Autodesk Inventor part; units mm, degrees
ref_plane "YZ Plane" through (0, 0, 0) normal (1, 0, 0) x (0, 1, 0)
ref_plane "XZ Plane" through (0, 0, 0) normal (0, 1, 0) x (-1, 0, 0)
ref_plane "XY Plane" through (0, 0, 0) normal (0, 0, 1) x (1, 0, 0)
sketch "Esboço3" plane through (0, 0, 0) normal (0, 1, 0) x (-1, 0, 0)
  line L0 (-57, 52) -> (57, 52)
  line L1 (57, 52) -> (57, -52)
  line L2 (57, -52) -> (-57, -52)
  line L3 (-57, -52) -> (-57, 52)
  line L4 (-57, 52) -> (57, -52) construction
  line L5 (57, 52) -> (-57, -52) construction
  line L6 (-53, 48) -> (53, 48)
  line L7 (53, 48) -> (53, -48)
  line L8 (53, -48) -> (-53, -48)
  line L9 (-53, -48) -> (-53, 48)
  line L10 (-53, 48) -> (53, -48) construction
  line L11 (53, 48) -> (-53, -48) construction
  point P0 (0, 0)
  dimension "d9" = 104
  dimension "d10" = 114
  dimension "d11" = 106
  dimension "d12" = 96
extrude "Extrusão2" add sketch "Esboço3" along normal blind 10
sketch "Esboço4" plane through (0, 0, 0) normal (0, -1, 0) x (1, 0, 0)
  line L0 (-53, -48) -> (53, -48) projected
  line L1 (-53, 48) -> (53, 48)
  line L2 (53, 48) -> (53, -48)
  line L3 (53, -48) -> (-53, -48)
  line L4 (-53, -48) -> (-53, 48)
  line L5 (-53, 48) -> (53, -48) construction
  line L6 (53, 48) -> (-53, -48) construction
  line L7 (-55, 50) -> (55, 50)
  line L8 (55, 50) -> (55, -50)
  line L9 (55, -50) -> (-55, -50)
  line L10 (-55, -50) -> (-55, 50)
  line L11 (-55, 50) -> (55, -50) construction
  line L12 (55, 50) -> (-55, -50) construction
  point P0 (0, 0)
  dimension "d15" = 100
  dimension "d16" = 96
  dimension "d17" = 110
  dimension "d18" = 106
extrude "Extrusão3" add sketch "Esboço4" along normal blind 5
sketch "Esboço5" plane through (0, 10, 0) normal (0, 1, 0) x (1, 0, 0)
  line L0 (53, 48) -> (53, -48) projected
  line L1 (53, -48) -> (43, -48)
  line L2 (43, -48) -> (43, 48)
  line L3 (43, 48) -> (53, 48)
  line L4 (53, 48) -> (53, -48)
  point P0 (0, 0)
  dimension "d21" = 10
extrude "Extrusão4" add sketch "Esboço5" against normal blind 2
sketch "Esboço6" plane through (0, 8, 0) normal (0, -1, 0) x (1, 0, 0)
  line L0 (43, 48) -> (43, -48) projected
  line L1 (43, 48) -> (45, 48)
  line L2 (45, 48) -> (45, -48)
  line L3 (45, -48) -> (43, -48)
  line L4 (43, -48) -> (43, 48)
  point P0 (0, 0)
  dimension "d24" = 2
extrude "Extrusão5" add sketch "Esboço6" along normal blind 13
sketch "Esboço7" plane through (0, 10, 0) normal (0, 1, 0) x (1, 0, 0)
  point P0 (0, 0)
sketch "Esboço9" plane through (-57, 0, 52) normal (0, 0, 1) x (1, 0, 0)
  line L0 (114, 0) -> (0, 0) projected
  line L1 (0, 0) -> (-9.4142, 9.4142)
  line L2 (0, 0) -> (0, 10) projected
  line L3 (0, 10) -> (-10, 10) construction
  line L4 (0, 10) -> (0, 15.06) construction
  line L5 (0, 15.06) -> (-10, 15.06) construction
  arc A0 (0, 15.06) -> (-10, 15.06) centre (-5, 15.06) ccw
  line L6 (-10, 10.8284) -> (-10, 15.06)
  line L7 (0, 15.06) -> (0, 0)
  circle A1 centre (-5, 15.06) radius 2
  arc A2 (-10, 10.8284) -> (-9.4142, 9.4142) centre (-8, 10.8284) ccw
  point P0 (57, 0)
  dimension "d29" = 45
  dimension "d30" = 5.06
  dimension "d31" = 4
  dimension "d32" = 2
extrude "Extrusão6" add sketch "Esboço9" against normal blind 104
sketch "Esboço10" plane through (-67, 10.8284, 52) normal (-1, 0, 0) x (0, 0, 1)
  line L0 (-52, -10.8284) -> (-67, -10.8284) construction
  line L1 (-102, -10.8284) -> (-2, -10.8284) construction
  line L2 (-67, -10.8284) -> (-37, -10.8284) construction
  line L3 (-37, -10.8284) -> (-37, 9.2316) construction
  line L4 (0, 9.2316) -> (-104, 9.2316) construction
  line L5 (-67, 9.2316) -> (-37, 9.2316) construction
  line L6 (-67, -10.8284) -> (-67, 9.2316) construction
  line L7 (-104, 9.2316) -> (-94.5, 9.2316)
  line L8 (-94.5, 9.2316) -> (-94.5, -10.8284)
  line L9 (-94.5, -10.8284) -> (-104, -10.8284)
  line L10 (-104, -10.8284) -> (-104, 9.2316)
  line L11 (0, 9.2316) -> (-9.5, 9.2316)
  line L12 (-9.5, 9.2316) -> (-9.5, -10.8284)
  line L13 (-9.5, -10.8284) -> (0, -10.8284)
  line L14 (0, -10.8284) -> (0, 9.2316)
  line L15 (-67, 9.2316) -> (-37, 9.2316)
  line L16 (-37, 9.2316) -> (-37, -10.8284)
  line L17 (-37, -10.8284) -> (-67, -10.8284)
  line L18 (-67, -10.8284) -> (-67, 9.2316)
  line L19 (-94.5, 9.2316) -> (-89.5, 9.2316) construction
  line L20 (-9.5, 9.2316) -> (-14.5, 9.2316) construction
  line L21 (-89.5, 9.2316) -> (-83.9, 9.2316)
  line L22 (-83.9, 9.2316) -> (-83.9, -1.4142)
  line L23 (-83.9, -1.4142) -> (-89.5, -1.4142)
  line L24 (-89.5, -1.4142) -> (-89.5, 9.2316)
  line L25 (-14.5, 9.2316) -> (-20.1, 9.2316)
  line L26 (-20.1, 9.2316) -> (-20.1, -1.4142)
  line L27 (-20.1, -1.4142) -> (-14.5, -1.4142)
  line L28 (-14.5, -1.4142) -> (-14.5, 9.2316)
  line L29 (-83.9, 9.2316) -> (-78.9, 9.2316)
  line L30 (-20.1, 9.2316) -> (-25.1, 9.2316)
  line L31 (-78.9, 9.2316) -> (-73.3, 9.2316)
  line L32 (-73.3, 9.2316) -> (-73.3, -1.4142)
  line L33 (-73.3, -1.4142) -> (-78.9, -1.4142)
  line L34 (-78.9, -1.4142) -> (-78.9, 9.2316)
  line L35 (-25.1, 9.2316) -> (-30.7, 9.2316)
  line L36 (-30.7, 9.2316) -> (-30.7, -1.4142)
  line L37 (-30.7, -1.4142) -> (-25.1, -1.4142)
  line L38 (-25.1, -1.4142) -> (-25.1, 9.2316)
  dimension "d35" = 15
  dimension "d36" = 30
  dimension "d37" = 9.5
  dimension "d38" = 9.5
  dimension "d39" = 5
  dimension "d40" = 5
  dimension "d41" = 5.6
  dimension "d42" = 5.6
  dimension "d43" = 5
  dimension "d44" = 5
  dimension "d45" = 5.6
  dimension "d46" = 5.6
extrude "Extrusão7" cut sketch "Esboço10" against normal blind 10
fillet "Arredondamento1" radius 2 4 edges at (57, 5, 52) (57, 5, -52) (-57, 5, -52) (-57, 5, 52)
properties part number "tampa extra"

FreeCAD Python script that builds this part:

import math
import FreeCAD as App
import Part
import Sketcher
Q = App.Units.Quantity


def edges_at(feature, points):
    """Names of the edges that pass closest to the given points."""
    edges = feature.Shape.Edges
    near = lambda p: min(range(len(edges)), key=lambda i: edges[i].distToShape(Part.Vertex(*p))[0])
    return sorted({f"Edge{near(p) + 1}" for p in points})

doc = App.newDocument("Part")
body = doc.addObject("PartDesign::Body", "Body")

sketch1 = body.newObject("Sketcher::SketchObject", "Sketch")
sketch1.AttachmentSupport = (doc.getObject("XZ_Plane"), [""])
sketch1.MapMode = "FlatFace"
sketch1.addGeometry(Part.LineSegment(App.Vector(-57, 52, 0), App.Vector(57, 52, 0)), False)
sketch1.addGeometry(Part.LineSegment(App.Vector(57, 52, 0), App.Vector(57, -52, 0)), False)
sketch1.addGeometry(Part.LineSegment(App.Vector(57, -52, 0), App.Vector(-57, -52, 0)), False)
sketch1.addGeometry(Part.LineSegment(App.Vector(-57, -52, 0), App.Vector(-57, 52, 0)), False)
sketch1.addGeometry(Part.LineSegment(App.Vector(53, -48, 0), App.Vector(53, 48, 0)), False)
sketch1.addGeometry(Part.LineSegment(App.Vector(53, 48, 0), App.Vector(-53, 48, 0)), False)
sketch1.addGeometry(Part.LineSegment(App.Vector(-53, 48, 0), App.Vector(-53, -48, 0)), False)
sketch1.addGeometry(Part.LineSegment(App.Vector(-53, -48, 0), App.Vector(53, -48, 0)), False)
sketch1.addConstraint(Sketcher.Constraint("Coincident", 0, 2, 1, 1))
sketch1.addConstraint(Sketcher.Constraint("Coincident", 1, 2, 2, 1))
sketch1.addConstraint(Sketcher.Constraint("Coincident", 2, 2, 3, 1))
sketch1.addConstraint(Sketcher.Constraint("Coincident", 3, 2, 0, 1))
sketch1.addConstraint(Sketcher.Constraint("Coincident", 4, 2, 5, 1))
sketch1.addConstraint(Sketcher.Constraint("Coincident", 5, 2, 6, 1))
sketch1.addConstraint(Sketcher.Constraint("Coincident", 6, 2, 7, 1))
sketch1.addConstraint(Sketcher.Constraint("Coincident", 7, 2, 4, 1))
sketch1.addConstraint(Sketcher.Constraint("Horizontal", 0))
sketch1.addConstraint(Sketcher.Constraint("Vertical", 1))
sketch1.addConstraint(Sketcher.Constraint("Horizontal", 2))
sketch1.addConstraint(Sketcher.Constraint("Vertical", 3))
sketch1.addConstraint(Sketcher.Constraint("Vertical", 4))
sketch1.addConstraint(Sketcher.Constraint("Horizontal", 5))
sketch1.addConstraint(Sketcher.Constraint("Vertical", 6))
sketch1.addConstraint(Sketcher.Constraint("Horizontal", 7))
sketch1.addConstraint(Sketcher.Constraint("Symmetric", 0, 2, 2, 2, -1, 1))
sketch1.addConstraint(Sketcher.Constraint("Symmetric", 4, 2, 6, 2, -1, 1))
sketch1.addConstraint(Sketcher.Constraint("DistanceX", 0, 1, 0, 2, 114.0))
sketch1.addConstraint(Sketcher.Constraint("DistanceX", 5, 2, 5, 1, 106.0))
sketch1.addConstraint(Sketcher.Constraint("DistanceY", 1, 2, 1, 1, 104.0))
sketch1.addConstraint(Sketcher.Constraint("DistanceY", 4, 1, 4, 2, 96.0))
pad1 = body.newObject("PartDesign::Pad", "Pad")
pad1.Profile = sketch1
pad1.Length = 10
pad1.Reversed = True

sketch2 = body.newObject("Sketcher::SketchObject", "Sketch001")
sketch2.AttachmentSupport = (doc.getObject("XZ_Plane"), [""])
sketch2.MapMode = "FlatFace"
sketch2.addGeometry(Part.LineSegment(App.Vector(55, 50, 0), App.Vector(-55, 50, 0)), False)
sketch2.addGeometry(Part.LineSegment(App.Vector(-55, 50, 0), App.Vector(-55, -50, 0)), False)
sketch2.addGeometry(Part.LineSegment(App.Vector(-55, -50, 0), App.Vector(55, -50, 0)), False)
sketch2.addGeometry(Part.LineSegment(App.Vector(55, -50, 0), App.Vector(55, 50, 0)), False)
sketch2.addGeometry(Part.LineSegment(App.Vector(53, -48, 0), App.Vector(-53, -48, 0)), False)
sketch2.addGeometry(Part.LineSegment(App.Vector(-53, -48, 0), App.Vector(-53, 48, 0)), False)
sketch2.addGeometry(Part.LineSegment(App.Vector(-53, 48, 0), App.Vector(53, 48, 0)), False)
sketch2.addGeometry(Part.LineSegment(App.Vector(53, 48, 0), App.Vector(53, -48, 0)), False)
sketch2.addConstraint(Sketcher.Constraint("Coincident", 0, 2, 1, 1))
sketch2.addConstraint(Sketcher.Constraint("Coincident", 1, 2, 2, 1))
sketch2.addConstraint(Sketcher.Constraint("Coincident", 2, 2, 3, 1))
sketch2.addConstraint(Sketcher.Constraint("Coincident", 3, 2, 0, 1))
sketch2.addConstraint(Sketcher.Constraint("Coincident", 4, 2, 5, 1))
sketch2.addConstraint(Sketcher.Constraint("Coincident", 5, 2, 6, 1))
sketch2.addConstraint(Sketcher.Constraint("Coincident", 6, 2, 7, 1))
sketch2.addConstraint(Sketcher.Constraint("Coincident", 7, 2, 4, 1))
sketch2.addConstraint(Sketcher.Constraint("Horizontal", 0))
sketch2.addConstraint(Sketcher.Constraint("Vertical", 1))
sketch2.addConstraint(Sketcher.Constraint("Horizontal", 2))
sketch2.addConstraint(Sketcher.Constraint("Vertical", 3))
sketch2.addConstraint(Sketcher.Constraint("Horizontal", 4))
sketch2.addConstraint(Sketcher.Constraint("Vertical", 5))
sketch2.addConstraint(Sketcher.Constraint("Horizontal", 6))
sketch2.addConstraint(Sketcher.Constraint("Vertical", 7))
sketch2.addConstraint(Sketcher.Constraint("Symmetric", 0, 2, 2, 2, -1, 1))
sketch2.addConstraint(Sketcher.Constraint("Symmetric", 4, 2, 6, 2, -1, 1))
sketch2.addConstraint(Sketcher.Constraint("DistanceX", 0, 2, 0, 1, 110.0))
sketch2.addConstraint(Sketcher.Constraint("DistanceX", 4, 2, 4, 1, 106.0))
sketch2.addConstraint(Sketcher.Constraint("DistanceY", 1, 2, 1, 1, 100.0))
sketch2.addConstraint(Sketcher.Constraint("DistanceY", 5, 1, 5, 2, 96.0))
pad2 = body.newObject("PartDesign::Pad", "Pad001")
pad2.Profile = sketch2
pad2.Length = 5

sketch3 = body.newObject("Sketcher::SketchObject", "Sketch002")
sketch3.AttachmentSupport = (doc.getObject("XZ_Plane"), [""])
sketch3.MapMode = "FlatFace"
sketch3.AttachmentOffset = App.Placement(App.Vector(0, 0, -10), App.Rotation())
sketch3.addGeometry(Part.LineSegment(App.Vector(53, 48, 0), App.Vector(53, -48, 0)), False)
sketch3.addGeometry(Part.LineSegment(App.Vector(53, -48, 0), App.Vector(43, -48, 0)), False)
sketch3.addGeometry(Part.LineSegment(App.Vector(43, -48, 0), App.Vector(43, 48, 0)), False)
sketch3.addGeometry(Part.LineSegment(App.Vector(43, 48, 0), App.Vector(53, 48, 0)), False)
sketch3.addConstraint(Sketcher.Constraint("Coincident", 0, 2, 1, 1))
sketch3.addConstraint(Sketcher.Constraint("Coincident", 1, 2, 2, 1))
sketch3.addConstraint(Sketcher.Constraint("Coincident", 2, 2, 3, 1))
sketch3.addConstraint(Sketcher.Constraint("Coincident", 3, 2, 0, 1))
sketch3.addConstraint(Sketcher.Constraint("Vertical", 0))
sketch3.addConstraint(Sketcher.Constraint("Horizontal", 1))
sketch3.addConstraint(Sketcher.Constraint("Vertical", 2))
sketch3.addConstraint(Sketcher.Constraint("Horizontal", 3))
sketch3.addConstraint(Sketcher.Constraint("DistanceX", 1, 2, 1, 1, 10.0))
sketch3.addConstraint(Sketcher.Constraint("DistanceY", 0, 2, 0, 1, 96.0))
sketch3.addConstraint(Sketcher.Constraint("DistanceX", -1, 1, 0, 2, 53.0))
sketch3.addConstraint(Sketcher.Constraint("DistanceY", 0, 2, -1, 1, 48.0))
pad3 = body.newObject("PartDesign::Pad", "Pad002")
pad3.Profile = sketch3
pad3.Length = 2

sketch4 = body.newObject("Sketcher::SketchObject", "Sketch003")
sketch4.AttachmentSupport = (doc.getObject("XZ_Plane"), [""])
sketch4.MapMode = "FlatFace"
sketch4.AttachmentOffset = App.Placement(App.Vector(0, 0, -8), App.Rotation())
sketch4.addGeometry(Part.LineSegment(App.Vector(45, 48, 0), App.Vector(43, 48, 0)), False)
sketch4.addGeometry(Part.LineSegment(App.Vector(43, 48, 0), App.Vector(43, -48, 0)), False)
sketch4.addGeometry(Part.LineSegment(App.Vector(43, -48, 0), App.Vector(45, -48, 0)), False)
sketch4.addGeometry(Part.LineSegment(App.Vector(45, -48, 0), App.Vector(45, 48, 0)), False)
sketch4.addConstraint(Sketcher.Constraint("Coincident", 0, 2, 1, 1))
sketch4.addConstraint(Sketcher.Constraint("Coincident", 1, 2, 2, 1))
sketch4.addConstraint(Sketcher.Constraint("Coincident", 2, 2, 3, 1))
sketch4.addConstraint(Sketcher.Constraint("Coincident", 3, 2, 0, 1))
sketch4.addConstraint(Sketcher.Constraint("Horizontal", 0))
sketch4.addConstraint(Sketcher.Constraint("Vertical", 1))
sketch4.addConstraint(Sketcher.Constraint("Horizontal", 2))
sketch4.addConstraint(Sketcher.Constraint("Vertical", 3))
sketch4.addConstraint(Sketcher.Constraint("DistanceX", 0, 2, 0, 1, 2.0))
sketch4.addConstraint(Sketcher.Constraint("DistanceY", 1, 2, 1, 1, 96.0))
sketch4.addConstraint(Sketcher.Constraint("DistanceX", -1, 1, 0, 2, 43.0))
sketch4.addConstraint(Sketcher.Constraint("DistanceY", -1, 1, 0, 2, 48.0))
pad4 = body.newObject("PartDesign::Pad", "Pad003")
pad4.Profile = sketch4
pad4.Length = 13

sketch5 = body.newObject("Sketcher::SketchObject", "Sketch004")
sketch5.AttachmentSupport = (doc.getObject("XY_Plane"), [""])
sketch5.MapMode = "FlatFace"
sketch5.AttachmentOffset = App.Placement(App.Vector(0, 0, 52), App.Rotation())
sketch5.addGeometry(Part.LineSegment(App.Vector(-66.4, 9.4, 0), App.Vector(-57, 0, 0)), False)
sketch5.addGeometry(Part.LineSegment(App.Vector(-57, 0, 0), App.Vector(-57, 15.1, 0)), False)
sketch5.addGeometry(Part.ArcOfCircle(Part.Circle(App.Vector(-62, 15.1, 0), App.Vector(0, 0, 1), 5), math.radians(0), math.radians(180)), False)
sketch5.addGeometry(Part.LineSegment(App.Vector(-67, 15.1, 0), App.Vector(-67, 10.8, 0)), False)
sketch5.addGeometry(Part.ArcOfCircle(Part.Circle(App.Vector(-65, 10.8, 0), App.Vector(0, 0, 1), 2), math.radians(180), math.radians(225)), False)
sketch5.addGeometry(Part.Circle(App.Vector(-62, 15.1, 0), App.Vector(0, 0, 1), 2), False)
sketch5.addConstraint(Sketcher.Constraint("Coincident", 0, 2, 1, 1))
sketch5.addConstraint(Sketcher.Constraint("Tangent", 1, 2, 2, 1))
sketch5.addConstraint(Sketcher.Constraint("Tangent", 2, 2, 3, 1))
sketch5.addConstraint(Sketcher.Constraint("Tangent", 3, 2, 4, 1))
sketch5.addConstraint(Sketcher.Constraint("Tangent", 4, 2, 0, 1))
sketch5.addConstraint(Sketcher.Constraint("Vertical", 1))
sketch5.addConstraint(Sketcher.Constraint("Vertical", 3))
sketch5.addConstraint(Sketcher.Constraint("Coincident", 5, 3, 2, 3))
sketch5.addConstraint(Sketcher.Constraint("Equal", 4, 5))
sketch5.addConstraint(Sketcher.Constraint("PointOnObject", 0, 2, -1))
sketch5.addConstraint(Sketcher.Constraint("Diameter", 5, 4.0))
sketch5.addConstraint(Sketcher.Constraint("Angle", 0, Q("-45 deg")))
sketch5.addConstraint(Sketcher.Constraint("Radius", 2, 5.0))
sketch5.addConstraint(Sketcher.Constraint("DistanceX", 2, 3, -1, 1, 62.0))
sketch5.addConstraint(Sketcher.Constraint("DistanceY", 1, 1, 1, 2, 15.06))
pad5 = body.newObject("PartDesign::Pad", "Pad004")
pad5.Profile = sketch5
pad5.Length = 104
pad5.Reversed = True

sketch6 = body.newObject("Sketcher::SketchObject", "Sketch005")
sketch6.AttachmentSupport = (doc.getObject("YZ_Plane"), [""])
sketch6.MapMode = "FlatFace"
sketch6.AttachmentOffset = App.Placement(App.Vector(0, 0, -67), App.Rotation())
sketch6.addGeometry(Part.LineSegment(App.Vector(20, -42, 0), App.Vector(20, -52, 0)), False)
sketch6.addGeometry(Part.LineSegment(App.Vector(20, -52, 0), App.Vector(0, -52, 0)), False)
sketch6.addGeometry(Part.LineSegment(App.Vector(0, -52, 0), App.Vector(0, -42, 0)), False)
sketch6.addGeometry(Part.LineSegment(App.Vector(0, -42, 0), App.Vector(20, -42, 0)), False)
sketch6.addGeometry(Part.LineSegment(App.Vector(0, 52, 0), App.Vector(20, 52, 0)), False)
sketch6.addGeometry(Part.LineSegment(App.Vector(20, 52, 0), App.Vector(20, 42, 0)), False)
sketch6.addGeometry(Part.LineSegment(App.Vector(20, 42, 0), App.Vector(0, 42, 0)), False)
sketch6.addGeometry(Part.LineSegment(App.Vector(0, 42, 0), App.Vector(0, 52, 0)), False)
sketch6.addGeometry(Part.LineSegment(App.Vector(20, 15, 0), App.Vector(20, -15, 0)), False)
sketch6.addGeometry(Part.LineSegment(App.Vector(20, -15, 0), App.Vector(0, -15, 0)), False)
sketch6.addGeometry(Part.LineSegment(App.Vector(0, -15, 0), App.Vector(0, 15, 0)), False)
sketch6.addGeometry(Part.LineSegment(App.Vector(0, 15, 0), App.Vector(20, 15, 0)), False)
sketch6.addGeometry(Part.LineSegment(App.Vector(20, -21, 0), App.Vector(20, -27, 0)), False)
sketch6.addGeometry(Part.LineSegment(App.Vector(20, -27, 0), App.Vector(9, -27, 0)), False)
sketch6.addGeometry(Part.LineSegment(App.Vector(9, -27, 0), App.Vector(9, -21, 0)), False)
sketch6.addGeometry(Part.LineSegment(App.Vector(9, -21, 0), App.Vector(20, -21, 0)), False)
sketch6.addGeometry(Part.LineSegment(App.Vector(20, -32, 0), App.Vector(20, -38, 0)), False)
sketch6.addGeometry(Part.LineSegment(App.Vector(20, -38, 0), App.Vector(9, -38, 0)), False)
sketch6.addGeometry(Part.LineSegment(App.Vector(9, -38, 0), App.Vector(9, -32, 0)), False)
sketch6.addGeometry(Part.LineSegment(App.Vector(9, -32, 0), App.Vector(20, -32, 0)), False)
sketch6.addGeometry(Part.LineSegment(App.Vector(9, 38, 0), App.Vector(20, 38, 0)), False)
sketch6.addGeometry(Part.LineSegment(App.Vector(20, 38, 0), App.Vector(20, 32, 0)), False)
sketch6.addGeometry(Part.LineSegment(App.Vector(20, 32, 0), App.Vector(9, 32, 0)), False)
sketch6.addGeometry(Part.LineSegment(App.Vector(9, 32, 0), App.Vector(9, 38, 0)), False)
sketch6.addGeometry(Part.LineSegment(App.Vector(9, 27, 0), App.Vector(20, 27, 0)), False)
sketch6.addGeometry(Part.LineSegment(App.Vector(20, 27, 0), App.Vector(20, 21, 0)), False)
sketch6.addGeometry(Part.LineSegment(App.Vector(20, 21, 0), App.Vector(9, 21, 0)), False)
sketch6.addGeometry(Part.LineSegment(App.Vector(9, 21, 0), App.Vector(9, 27, 0)), False)
sketch6.addConstraint(Sketcher.Constraint("Coincident", 0, 2, 1, 1))
sketch6.addConstraint(Sketcher.Constraint("Coincident", 1, 2, 2, 1))
sketch6.addConstraint(Sketcher.Constraint("Coincident", 2, 2, 3, 1))
sketch6.addConstraint(Sketcher.Constraint("Coincident", 3, 2, 0, 1))
sketch6.addConstraint(Sketcher.Constraint("Coincident", 4, 2, 5, 1))
sketch6.addConstraint(Sketcher.Constraint("Coincident", 5, 2, 6, 1))
sketch6.addConstraint(Sketcher.Constraint("Coincident", 6, 2, 7, 1))
sketch6.addConstraint(Sketcher.Constraint("Coincident", 7, 2, 4, 1))
sketch6.addConstraint(Sketcher.Constraint("Coincident", 8, 2, 9, 1))
sketch6.addConstraint(Sketcher.Constraint("Coincident", 9, 2, 10, 1))
sketch6.addConstraint(Sketcher.Constraint("Coincident", 10, 2, 11, 1))
sketch6.addConstraint(Sketcher.Constraint("Coincident", 11, 2, 8, 1))
sketch6.addConstraint(Sketcher.Constraint("Coincident", 12, 2, 13, 1))
sketch6.addConstraint(Sketcher.Constraint("Coincident", 13, 2, 14, 1))
sketch6.addConstraint(Sketcher.Constraint("Coincident", 14, 2, 15, 1))
sketch6.addConstraint(Sketcher.Constraint("Coincident", 15, 2, 12, 1))
sketch6.addConstraint(Sketcher.Constraint("Coincident", 16, 2, 17, 1))
sketch6.addConstraint(Sketcher.Constraint("Coincident", 17, 2, 18, 1))
sketch6.addConstraint(Sketcher.Constraint("Coincident", 18, 2, 19, 1))
sketch6.addConstraint(Sketcher.Constraint("Coincident", 19, 2, 16, 1))
sketch6.addConstraint(Sketcher.Constraint("Coincident", 20, 2, 21, 1))
sketch6.addConstraint(Sketcher.Constraint("Coincident", 21, 2, 22, 1))
sketch6.addConstraint(Sketcher.Constraint("Coincident", 22, 2, 23, 1))
sketch6.addConstraint(Sketcher.Constraint("Coincident", 23, 2, 20, 1))
sketch6.addConstraint(Sketcher.Constraint("Coincident", 24, 2, 25, 1))
sketch6.addConstraint(Sketcher.Constraint("Coincident", 25, 2, 26, 1))
sketch6.addConstraint(Sketcher.Constraint("Coincident", 26, 2, 27, 1))
sketch6.addConstraint(Sketcher.Constraint("Coincident", 27, 2, 24, 1))
sketch6.addConstraint(Sketcher.Constraint("Vertical", 0))
sketch6.addConstraint(Sketcher.Constraint("Horizontal", 1))
sketch6.addConstraint(Sketcher.Constraint("Vertical", 2))
sketch6.addConstraint(Sketcher.Constraint("Horizontal", 3))
sketch6.addConstraint(Sketcher.Constraint("Horizontal", 4))
sketch6.addConstraint(Sketcher.Constraint("Vertical", 5))
sketch6.addConstraint(Sketcher.Constraint("Horizontal", 6))
sketch6.addConstraint(Sketcher.Constraint("Vertical", 7))
sketch6.addConstraint(Sketcher.Constraint("Vertical", 8))
sketch6.addConstraint(Sketcher.Constraint("Horizontal", 9))
sketch6.addConstraint(Sketcher.Constraint("Vertical", 10))
sketch6.addConstraint(Sketcher.Constraint("Horizontal", 11))
sketch6.addConstraint(Sketcher.Constraint("Vertical", 12))
sketch6.addConstraint(Sketcher.Constraint("Horizontal", 13))
sketch6.addConstraint(Sketcher.Constraint("Vertical", 14))
sketch6.addConstraint(Sketcher.Constraint("Horizontal", 15))
sketch6.addConstraint(Sketcher.Constraint("Vertical", 16))
sketch6.addConstraint(Sketcher.Constraint("Horizontal", 17))
sketch6.addConstraint(Sketcher.Constraint("Vertical", 18))
sketch6.addConstraint(Sketcher.Constraint("Horizontal", 19))
sketch6.addConstraint(Sketcher.Constraint("Horizontal", 20))
sketch6.addConstraint(Sketcher.Constraint("Vertical", 21))
sketch6.addConstraint(Sketcher.Constraint("Horizontal", 22))
sketch6.addConstraint(Sketcher.Constraint("Vertical", 23))
sketch6.addConstraint(Sketcher.Constraint("Horizontal", 24))
sketch6.addConstraint(Sketcher.Constraint("Vertical", 25))
sketch6.addConstraint(Sketcher.Constraint("Horizontal", 26))
sketch6.addConstraint(Sketcher.Constraint("Vertical", 27))
sketch6.addConstraint(Sketcher.Constraint("Symmetric", 2, 2, 6, 2, -1, 1))
sketch6.addConstraint(Sketcher.Constraint("Symmetric", 9, 2, 10, 2, -1, 1))
sketch6.addConstraint(Sketcher.Constraint("Symmetric", 0, 2, 4, 2, -1))
sketch6.addConstraint(Sketcher.Constraint("Symmetric", 16, 2, 20, 2, -1))
sketch6.addConstraint(Sketcher.Constraint("Symmetric", 18, 2, 22, 2, -1))
sketch6.addConstraint(Sketcher.Constraint("Symmetric", 12, 2, 24, 2, -1))
sketch6.addConstraint(Sketcher.Constraint("Symmetric", 14, 2, 26, 2, -1))
sketch6.addConstraint(Sketcher.Constraint("PointOnObject", 1, 2, -2))
sketch6.addConstraint(Sketcher.Constraint("Vertical", 5, 2, 8, 2))
sketch6.addConstraint(Sketcher.Constraint("Vertical", 11, 2, 12, 2))
sketch6.addConstraint(Sketcher.Constraint("Vertical", 15, 2, 16, 2))
sketch6.addConstraint(Sketcher.Constraint("Vertical", 14, 2, 17, 2))
sketch6.addConstraint(Sketcher.Constraint("Equal", 14, 16))
sketch6.addConstraint(Sketcher.Constraint("DistanceY", 8, 2, 8, 1, 30.0))
sketch6.addConstraint(Sketcher.Constraint("DistanceY", 0, 2, 0, 1, 9.5))
sketch6.addConstraint(Sketcher.Constraint("DistanceY", 12, 2, 12, 1, 5.6))
sketch6.addConstraint(Sketcher.Constraint("DistanceY", 3, 2, 16, 2, 5.0))
sketch6.addConstraint(Sketcher.Constraint("DistanceY", 18, 2, 13, 2, 5.0))
sketch6.addConstraint(Sketcher.Constraint("DistanceY", 0, 2, -1, 1, 52.0))
sketch6.addConstraint(Sketcher.Constraint("DistanceX", 1, 2, 1, 1, 20.06))
sketch6.addConstraint(Sketcher.Constraint("DistanceX", 13, 2, 13, 1, 10.6458))
pocket1 = body.newObject("PartDesign::Pocket", "Pocket")
pocket1.Profile = sketch6
pocket1.Length = 10
pocket1.Reversed = True
doc.recompute()

fillet = body.newObject("PartDesign::Fillet", "Fillet")
fillet.Base = (pocket1, edges_at(pocket1, [
    (57, 5, 52),
    (57, 5, -52),
    (-57, 5, -52),
    (-57, 5, 52),
]))
fillet.Radius = 2

doc.recompute()
